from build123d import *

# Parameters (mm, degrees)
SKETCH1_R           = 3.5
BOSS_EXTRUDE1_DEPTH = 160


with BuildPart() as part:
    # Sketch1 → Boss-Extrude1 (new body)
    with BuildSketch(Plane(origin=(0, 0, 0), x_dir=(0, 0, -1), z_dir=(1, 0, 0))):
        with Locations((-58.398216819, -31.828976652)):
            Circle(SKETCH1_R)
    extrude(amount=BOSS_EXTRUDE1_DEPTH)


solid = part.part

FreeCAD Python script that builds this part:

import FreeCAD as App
import Part
import Sketcher
from FreeCAD import Vector
Q = App.Units.Quantity

doc = App.newDocument("Part")
params = doc.addObject("Spreadsheet::Sheet", "Params")
for row, (alias, value) in enumerate([
    ("sketch1_diameter", "7 mm"),
    ("pad1_length", "160 mm"),
], start=1):
    params.set(f"A{row}", alias)
    params.set(f"B{row}", "=" + value)
    params.setAlias(f"B{row}", alias)

body = doc.addObject("PartDesign::Body", "Body")

# Sketch on YZ plane
sketch1 = body.newObject("Sketcher::SketchObject", "Sketch")
sketch1.AttachmentSupport = (doc.getObject("YZ_Plane"), [""])
sketch1.MapMode = "FlatFace"
sketch1.addGeometry(Part.Circle(Vector(-31.8, 58.4, 0), Vector(0, 0, 1), 3.5), False)
sketch1.addConstraint([
    Sketcher.Constraint("Diameter", 0, Q("7 mm")),
    Sketcher.Constraint("DistanceX", 0, 3, -1, 1, Q("31.828977 mm")),
    Sketcher.Constraint("DistanceY", -1, 1, 0, 3, Q("58.398217 mm")),
])
sketch1.setExpression("Constraints[0]", "Params.sketch1_diameter")
pad1 = body.newObject("PartDesign::Pad", "Pad")
pad1.Profile = sketch1
pad1.setExpression("Length", "Params.pad1_length")

doc.recompute()
